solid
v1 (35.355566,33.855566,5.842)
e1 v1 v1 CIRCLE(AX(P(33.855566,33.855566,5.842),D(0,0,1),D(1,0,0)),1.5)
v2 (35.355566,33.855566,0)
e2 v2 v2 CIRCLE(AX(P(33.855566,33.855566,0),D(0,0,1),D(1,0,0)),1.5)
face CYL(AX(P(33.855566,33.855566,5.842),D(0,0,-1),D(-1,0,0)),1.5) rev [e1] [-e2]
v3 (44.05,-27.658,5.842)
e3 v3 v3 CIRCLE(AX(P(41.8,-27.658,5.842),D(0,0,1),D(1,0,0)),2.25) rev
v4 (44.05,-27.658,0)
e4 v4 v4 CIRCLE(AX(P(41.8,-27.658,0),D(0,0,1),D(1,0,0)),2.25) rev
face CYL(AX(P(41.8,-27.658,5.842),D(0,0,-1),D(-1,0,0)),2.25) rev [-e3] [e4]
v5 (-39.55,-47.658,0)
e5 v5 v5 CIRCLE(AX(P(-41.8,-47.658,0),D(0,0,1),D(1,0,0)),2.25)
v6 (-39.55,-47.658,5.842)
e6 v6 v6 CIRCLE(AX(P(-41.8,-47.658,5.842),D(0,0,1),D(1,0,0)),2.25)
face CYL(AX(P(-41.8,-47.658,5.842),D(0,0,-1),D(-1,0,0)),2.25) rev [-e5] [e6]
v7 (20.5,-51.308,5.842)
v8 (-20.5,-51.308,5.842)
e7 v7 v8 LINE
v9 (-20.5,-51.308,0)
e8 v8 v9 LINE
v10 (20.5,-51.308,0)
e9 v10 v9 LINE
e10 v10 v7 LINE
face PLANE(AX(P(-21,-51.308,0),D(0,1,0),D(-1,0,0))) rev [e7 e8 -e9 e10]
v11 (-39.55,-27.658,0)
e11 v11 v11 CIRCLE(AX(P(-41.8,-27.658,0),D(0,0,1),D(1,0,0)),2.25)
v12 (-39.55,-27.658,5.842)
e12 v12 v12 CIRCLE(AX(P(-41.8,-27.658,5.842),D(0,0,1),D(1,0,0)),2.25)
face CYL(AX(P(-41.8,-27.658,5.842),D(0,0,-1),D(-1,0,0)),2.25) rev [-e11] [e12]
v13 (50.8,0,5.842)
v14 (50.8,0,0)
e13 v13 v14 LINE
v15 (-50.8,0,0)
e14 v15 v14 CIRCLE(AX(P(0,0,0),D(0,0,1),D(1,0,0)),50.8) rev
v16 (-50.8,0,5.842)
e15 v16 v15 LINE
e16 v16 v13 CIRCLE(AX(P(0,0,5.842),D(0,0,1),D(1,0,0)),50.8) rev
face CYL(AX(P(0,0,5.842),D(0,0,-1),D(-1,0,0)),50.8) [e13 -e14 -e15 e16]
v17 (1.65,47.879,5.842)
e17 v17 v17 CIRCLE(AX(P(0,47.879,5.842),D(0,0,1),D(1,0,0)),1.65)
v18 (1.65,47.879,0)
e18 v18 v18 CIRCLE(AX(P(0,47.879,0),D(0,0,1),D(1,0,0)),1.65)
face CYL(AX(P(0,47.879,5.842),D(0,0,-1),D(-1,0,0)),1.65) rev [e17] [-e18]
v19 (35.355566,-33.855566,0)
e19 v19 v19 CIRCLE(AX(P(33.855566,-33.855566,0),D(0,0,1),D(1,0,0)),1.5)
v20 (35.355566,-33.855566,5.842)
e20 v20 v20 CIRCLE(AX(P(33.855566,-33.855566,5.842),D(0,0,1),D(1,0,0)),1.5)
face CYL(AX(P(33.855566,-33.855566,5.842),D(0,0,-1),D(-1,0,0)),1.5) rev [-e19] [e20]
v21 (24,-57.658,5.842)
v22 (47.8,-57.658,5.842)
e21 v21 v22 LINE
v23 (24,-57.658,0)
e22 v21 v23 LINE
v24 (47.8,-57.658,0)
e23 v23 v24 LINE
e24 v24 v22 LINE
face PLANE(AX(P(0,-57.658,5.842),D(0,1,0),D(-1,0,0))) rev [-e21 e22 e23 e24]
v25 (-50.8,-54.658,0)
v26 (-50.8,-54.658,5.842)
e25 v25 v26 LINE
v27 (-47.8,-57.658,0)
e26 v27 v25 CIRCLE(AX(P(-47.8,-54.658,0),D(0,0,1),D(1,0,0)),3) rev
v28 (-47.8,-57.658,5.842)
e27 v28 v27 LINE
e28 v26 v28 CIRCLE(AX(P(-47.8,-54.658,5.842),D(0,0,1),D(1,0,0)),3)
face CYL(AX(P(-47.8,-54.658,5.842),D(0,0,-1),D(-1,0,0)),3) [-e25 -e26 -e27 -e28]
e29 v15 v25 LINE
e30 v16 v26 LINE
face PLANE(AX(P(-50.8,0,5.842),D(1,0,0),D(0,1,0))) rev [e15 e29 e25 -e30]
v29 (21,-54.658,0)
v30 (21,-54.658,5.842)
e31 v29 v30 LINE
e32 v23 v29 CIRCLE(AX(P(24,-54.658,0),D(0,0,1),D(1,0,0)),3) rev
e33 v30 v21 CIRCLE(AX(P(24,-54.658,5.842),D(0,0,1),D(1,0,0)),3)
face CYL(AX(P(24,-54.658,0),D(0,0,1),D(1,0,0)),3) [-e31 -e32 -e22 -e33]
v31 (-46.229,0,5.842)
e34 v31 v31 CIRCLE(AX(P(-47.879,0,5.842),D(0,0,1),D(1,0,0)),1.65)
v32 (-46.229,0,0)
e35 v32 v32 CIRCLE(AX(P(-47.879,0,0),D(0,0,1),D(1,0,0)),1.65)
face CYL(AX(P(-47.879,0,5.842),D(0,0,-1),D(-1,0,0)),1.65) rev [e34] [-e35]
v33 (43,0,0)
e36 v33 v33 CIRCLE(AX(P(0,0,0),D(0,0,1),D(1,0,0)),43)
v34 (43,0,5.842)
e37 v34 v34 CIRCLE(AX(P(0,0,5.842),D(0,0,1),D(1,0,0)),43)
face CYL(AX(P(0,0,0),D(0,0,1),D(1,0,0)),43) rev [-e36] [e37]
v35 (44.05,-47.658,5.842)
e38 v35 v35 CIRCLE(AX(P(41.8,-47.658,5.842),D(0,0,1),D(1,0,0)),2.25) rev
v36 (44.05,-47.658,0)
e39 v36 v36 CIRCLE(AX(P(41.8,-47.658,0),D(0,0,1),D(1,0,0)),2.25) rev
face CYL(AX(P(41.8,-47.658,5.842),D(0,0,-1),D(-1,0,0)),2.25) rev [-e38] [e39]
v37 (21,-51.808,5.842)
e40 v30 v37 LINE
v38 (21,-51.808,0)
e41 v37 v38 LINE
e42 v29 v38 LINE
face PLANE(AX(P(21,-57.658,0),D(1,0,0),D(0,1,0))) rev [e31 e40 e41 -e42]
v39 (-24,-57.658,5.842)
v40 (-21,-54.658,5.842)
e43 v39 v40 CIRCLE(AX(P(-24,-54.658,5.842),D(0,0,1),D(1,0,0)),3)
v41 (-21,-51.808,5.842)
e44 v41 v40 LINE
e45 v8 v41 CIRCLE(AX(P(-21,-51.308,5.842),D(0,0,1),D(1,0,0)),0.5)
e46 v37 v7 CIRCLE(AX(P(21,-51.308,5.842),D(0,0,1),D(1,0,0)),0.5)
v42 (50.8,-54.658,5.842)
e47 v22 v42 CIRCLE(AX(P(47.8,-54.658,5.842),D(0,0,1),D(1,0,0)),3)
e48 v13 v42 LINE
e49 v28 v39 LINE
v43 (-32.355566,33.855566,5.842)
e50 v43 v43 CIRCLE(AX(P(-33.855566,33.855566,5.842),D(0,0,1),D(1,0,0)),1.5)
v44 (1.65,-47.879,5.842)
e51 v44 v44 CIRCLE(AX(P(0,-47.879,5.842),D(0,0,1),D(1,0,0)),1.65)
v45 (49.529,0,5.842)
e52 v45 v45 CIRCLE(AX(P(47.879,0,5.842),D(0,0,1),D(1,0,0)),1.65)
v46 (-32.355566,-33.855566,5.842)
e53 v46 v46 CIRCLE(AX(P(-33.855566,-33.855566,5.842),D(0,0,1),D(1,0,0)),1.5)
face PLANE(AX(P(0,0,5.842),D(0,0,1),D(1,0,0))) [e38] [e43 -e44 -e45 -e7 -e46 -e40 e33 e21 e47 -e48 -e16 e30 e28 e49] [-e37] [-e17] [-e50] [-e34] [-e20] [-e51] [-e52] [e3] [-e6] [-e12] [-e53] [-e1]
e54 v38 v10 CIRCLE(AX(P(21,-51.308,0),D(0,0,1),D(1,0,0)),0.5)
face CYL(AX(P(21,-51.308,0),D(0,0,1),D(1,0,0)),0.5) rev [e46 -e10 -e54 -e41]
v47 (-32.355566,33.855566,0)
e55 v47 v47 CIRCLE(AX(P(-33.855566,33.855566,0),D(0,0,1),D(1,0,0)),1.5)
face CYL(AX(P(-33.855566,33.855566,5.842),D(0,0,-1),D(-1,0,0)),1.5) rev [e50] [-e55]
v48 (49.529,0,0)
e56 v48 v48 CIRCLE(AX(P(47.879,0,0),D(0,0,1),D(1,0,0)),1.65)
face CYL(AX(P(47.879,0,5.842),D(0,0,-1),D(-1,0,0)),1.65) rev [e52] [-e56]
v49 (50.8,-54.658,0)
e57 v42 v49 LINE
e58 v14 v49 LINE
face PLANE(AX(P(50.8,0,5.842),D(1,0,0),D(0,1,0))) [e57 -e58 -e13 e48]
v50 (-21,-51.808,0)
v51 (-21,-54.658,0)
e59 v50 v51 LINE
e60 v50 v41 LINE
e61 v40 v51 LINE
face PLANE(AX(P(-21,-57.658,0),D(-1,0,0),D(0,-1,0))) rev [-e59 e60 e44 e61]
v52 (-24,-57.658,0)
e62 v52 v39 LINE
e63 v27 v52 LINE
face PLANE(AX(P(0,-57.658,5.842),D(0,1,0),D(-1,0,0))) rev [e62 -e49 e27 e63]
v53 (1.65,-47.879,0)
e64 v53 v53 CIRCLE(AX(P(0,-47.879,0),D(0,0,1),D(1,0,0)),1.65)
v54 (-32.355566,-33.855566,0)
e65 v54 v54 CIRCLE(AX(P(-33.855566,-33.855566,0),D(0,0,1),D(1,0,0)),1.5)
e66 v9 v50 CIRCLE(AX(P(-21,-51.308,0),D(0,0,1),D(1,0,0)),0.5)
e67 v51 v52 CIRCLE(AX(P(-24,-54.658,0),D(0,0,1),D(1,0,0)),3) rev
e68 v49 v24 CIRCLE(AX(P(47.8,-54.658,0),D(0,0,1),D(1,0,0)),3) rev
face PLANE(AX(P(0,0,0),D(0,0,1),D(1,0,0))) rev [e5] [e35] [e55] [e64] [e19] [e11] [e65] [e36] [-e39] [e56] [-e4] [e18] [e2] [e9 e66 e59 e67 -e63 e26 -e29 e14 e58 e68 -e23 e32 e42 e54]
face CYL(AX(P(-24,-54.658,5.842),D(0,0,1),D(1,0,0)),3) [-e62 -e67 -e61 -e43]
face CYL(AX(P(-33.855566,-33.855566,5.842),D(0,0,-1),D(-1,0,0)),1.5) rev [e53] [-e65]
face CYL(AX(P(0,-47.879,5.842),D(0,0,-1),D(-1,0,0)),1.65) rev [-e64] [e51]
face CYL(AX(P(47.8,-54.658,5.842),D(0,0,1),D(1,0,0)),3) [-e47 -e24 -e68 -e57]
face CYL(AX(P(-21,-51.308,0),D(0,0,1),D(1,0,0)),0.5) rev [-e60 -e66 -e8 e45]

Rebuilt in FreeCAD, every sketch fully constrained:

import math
import FreeCAD as App
import Part
import Sketcher

V = App.Vector


def edges_at(feature, points):
    """Names of the edges that pass closest to the given points."""
    edges = feature.Shape.Edges
    near = lambda p: min(range(len(edges)), key=lambda i: edges[i].distToShape(Part.Vertex(*p))[0])
    return sorted({f"Edge{near(p) + 1}" for p in points})


def add_polygon(sketch, points):
    """Adds a closed chain of lines whose ends are joined by coincident constraints."""
    first, n = sketch.GeometryCount, len(points)
    for a, b in zip(points, points[1:] + points[:1]):
        sketch.addGeometry(Part.LineSegment(App.Vector(*a, 0), App.Vector(*b, 0)), False)
    for i in range(n):
        sketch.addConstraint(Sketcher.Constraint("Coincident", first + i, 2, first + (i + 1) % n, 1))

doc = App.newDocument("Part")
body = doc.addObject("PartDesign::Body", "Body")

sketch1 = doc.addObject("Sketcher::SketchObject", "Sketch")
body.addObject(sketch1)
sketch1.AttachmentSupport = (doc.XY_Plane, [""])
sketch1.MapMode = "FlatFace"
sketch1.addGeometry(Part.LineSegment(V(-50.8, 0, 0), V(-50.8, -57.7, 0)), False)
sketch1.addGeometry(Part.LineSegment(V(-50.8, -57.7, 0), V(50.8, -57.7, 0)), False)
sketch1.addGeometry(Part.LineSegment(V(50.8, -57.7, 0), V(50.8, 0, 0)), False)
sketch1.addGeometry(Part.ArcOfCircle(Part.Circle(V(0, 0, 0), V(0, 0, 1), 50.8), math.radians(0), math.radians(180)), False)
sketch1.addGeometry(Part.Circle(V(-41.8, -47.7, 0), V(0, 0, 1), 2.2), False)
sketch1.addGeometry(Part.Circle(V(-41.8, -27.7, 0), V(0, 0, 1), 2.2), False)
sketch1.addGeometry(Part.Circle(V(-33.9, -33.9, 0), V(0, 0, 1), 1.5), False)
sketch1.addGeometry(Part.Circle(V(0, -47.9, 0), V(0, 0, 1), 1.6), False)
sketch1.addGeometry(Part.Circle(V(41.8, -47.7, 0), V(0, 0, 1), 2.2), False)
sketch1.addGeometry(Part.Circle(V(33.9, -33.9, 0), V(0, 0, 1), 1.5), False)
sketch1.addGeometry(Part.Circle(V(41.8, -27.7, 0), V(0, 0, 1), 2.2), False)
sketch1.addGeometry(Part.Circle(V(-47.9, 0, 0), V(0, 0, 1), 1.6), False)
sketch1.addGeometry(Part.Circle(V(-33.9, 33.9, 0), V(0, 0, 1), 1.5), False)
sketch1.addGeometry(Part.Circle(V(0, 0, 0), V(0, 0, 1), 45), False)
sketch1.addGeometry(Part.Circle(V(47.9, 0, 0), V(0, 0, 1), 1.6), False)
sketch1.addGeometry(Part.Circle(V(0, 47.9, 0), V(0, 0, 1), 1.6), False)
sketch1.addGeometry(Part.Circle(V(33.9, 33.9, 0), V(0, 0, 1), 1.5), False)
sketch1.addConstraint(Sketcher.Constraint("Coincident", 0, 2, 1, 1))
sketch1.addConstraint(Sketcher.Constraint("Coincident", 1, 2, 2, 1))
sketch1.addConstraint(Sketcher.Constraint("Tangent", 2, 2, 3, 1))
sketch1.addConstraint(Sketcher.Constraint("Tangent", 3, 2, 0, 1))
sketch1.addConstraint(Sketcher.Constraint("Vertical", 0))
sketch1.addConstraint(Sketcher.Constraint("Horizontal", 1))
sketch1.addConstraint(Sketcher.Constraint("Vertical", 2))
sketch1.addConstraint(Sketcher.Constraint("Coincident", 3, 3, -1, 1))
sketch1.addConstraint(Sketcher.Constraint("Coincident", 13, 3, -1, 1))
sketch1.addConstraint(Sketcher.Constraint("Equal", 4, 5))
sketch1.addConstraint(Sketcher.Constraint("Equal", 5, 8))
sketch1.addConstraint(Sketcher.Constraint("Equal", 6, 9))
sketch1.addConstraint(Sketcher.Constraint("Equal", 8, 10))
sketch1.addConstraint(Sketcher.Constraint("Equal", 7, 11))
sketch1.addConstraint(Sketcher.Constraint("Equal", 9, 12))
sketch1.addConstraint(Sketcher.Constraint("Equal", 11, 14))
sketch1.addConstraint(Sketcher.Constraint("Equal", 14, 15))
sketch1.addConstraint(Sketcher.Constraint("Equal", 12, 16))
sketch1.addConstraint(Sketcher.Constraint("Symmetric", 9, 3, 12, 3, -1, 1))
sketch1.addConstraint(Sketcher.Constraint("Symmetric", 11, 3, 14, 3, -1, 1))
sketch1.addConstraint(Sketcher.Constraint("Symmetric", 7, 3, 15, 3, -1, 1))
sketch1.addConstraint(Sketcher.Constraint("Symmetric", 6, 3, 16, 3, -1, 1))
sketch1.addConstraint(Sketcher.Constraint("Symmetric", 4, 3, 8, 3, -2))
sketch1.addConstraint(Sketcher.Constraint("Symmetric", 6, 3, 9, 3, -2))
sketch1.addConstraint(Sketcher.Constraint("Symmetric", 5, 3, 10, 3, -2))
sketch1.addConstraint(Sketcher.Constraint("PointOnObject", 7, 3, -2))
sketch1.addConstraint(Sketcher.Constraint("PointOnObject", 11, 3, -1))
sketch1.addConstraint(Sketcher.Constraint("Vertical", 4, 3, 5, 3))
sketch1.addConstraint(Sketcher.Constraint("Diameter", 6, 3.0))
sketch1.addConstraint(Sketcher.Constraint("Diameter", 4, 4.5))
sketch1.addConstraint(Sketcher.Constraint("Diameter", 7, 3.3))
sketch1.addConstraint(Sketcher.Constraint("Radius", 3, 50.8))
sketch1.addConstraint(Sketcher.Constraint("Diameter", 13, 89.916))
sketch1.addConstraint(Sketcher.Constraint("DistanceY", 4, 3, 5, 3, 20.0))
sketch1.addConstraint(Sketcher.Constraint("DistanceX", 0, 2, 4, 3, 9.0))
sketch1.addConstraint(Sketcher.Constraint("DistanceY", 0, 2, 4, 3, 10.0))
sketch1.addConstraint(Sketcher.Constraint("DistanceY", 0, 2, 0, 1, 57.658))
sketch1.addConstraint(Sketcher.Constraint("DistanceY", 7, 3, -1, 1, 47.879))
sketch1.addConstraint(Sketcher.Constraint("DistanceX", 11, 3, -1, 1, 47.879))
sketch1.addConstraint(Sketcher.Constraint("DistanceX", 6, 3, 9, 3, 67.711131))
sketch1.addConstraint(Sketcher.Constraint("DistanceY", 6, 3, 12, 3, 67.711131))
pad1 = doc.addObject("PartDesign::Pad", "Pad")
body.addObject(pad1)
pad1.Profile = sketch1
pad1.Length = 5.842

sketch2 = doc.addObject("Sketcher::SketchObject", "Sketch001")
body.addObject(sketch2)
sketch2.AttachmentSupport = (doc.XY_Plane, [""])
sketch2.MapMode = "FlatFace"
sketch2.AttachmentOffset = App.Placement(V(0, 0, 5.842), App.Rotation())
sketch2.addGeometry(Part.Circle(V(0, 0, 0), V(0, 0, 1), 45), False)
sketch2.addGeometry(Part.Circle(V(0, 0, 0), V(0, 0, 1), 43), False)
sketch2.addConstraint(Sketcher.Constraint("Coincident", 0, 3, -1, 1))
sketch2.addConstraint(Sketcher.Constraint("Coincident", 1, 3, -1, 1))
sketch2.addConstraint(Sketcher.Constraint("Diameter", 1, 86.0))
sketch2.addConstraint(Sketcher.Constraint("Diameter", 0, 89.916))
pad2 = doc.addObject("PartDesign::Pad", "Pad001")
body.addObject(pad2)
pad2.Profile = sketch2
pad2.Length = 5.842
pad2.Reversed = True

sketch3 = doc.addObject("Sketcher::SketchObject", "Sketch002")
body.addObject(sketch3)
sketch3.AttachmentSupport = (doc.XY_Plane, [""])
sketch3.MapMode = "FlatFace"
sketch3.AttachmentOffset = App.Placement(V(0, 0, 5.842), App.Rotation())
add_polygon(sketch3, [(-21, -51), (-21, -58), (21, -58), (21, -51)])
sketch3.addConstraint(Sketcher.Constraint("Vertical", 0))
sketch3.addConstraint(Sketcher.Constraint("Horizontal", 1))
sketch3.addConstraint(Sketcher.Constraint("Vertical", 2))
sketch3.addConstraint(Sketcher.Constraint("Horizontal", 3))
sketch3.addConstraint(Sketcher.Constraint("DistanceX", 1, 1, 1, 2, 42.0))
sketch3.addConstraint(Sketcher.Constraint("DistanceX", 0, 2, -1, 1, 21.0))
sketch3.addConstraint(Sketcher.Constraint("DistanceY", 0, 2, 0, 1, 6.35))
sketch3.addConstraint(Sketcher.Constraint("DistanceY", 0, 2, -1, 1, 57.658))
pocket1 = doc.addObject("PartDesign::Pocket", "Pocket")
body.addObject(pocket1)
pocket1.Profile = sketch3
pocket1.Type = "ThroughAll"

sketch4 = doc.addObject("Sketcher::SketchObject", "Sketch003")
body.addObject(sketch4)
sketch4.AttachmentSupport = (doc.XY_Plane, [""])
sketch4.MapMode = "FlatFace"
sketch4.AttachmentOffset = App.Placement(V(0, 0, 5.842), App.Rotation())
sketch4.addGeometry(Part.Circle(V(-21, -51.3, 0), V(0, 0, 1), 0.5), False)
sketch4.addGeometry(Part.Circle(V(21, -51.3, 0), V(0, 0, 1), 0.5), False)
sketch4.addConstraint(Sketcher.Constraint("Equal", 0, 1))
sketch4.addConstraint(Sketcher.Constraint("Symmetric", 0, 3, 1, 3, -2))
sketch4.addConstraint(Sketcher.Constraint("Diameter", 0, 1.0))
sketch4.addConstraint(Sketcher.Constraint("DistanceX", 0, 3, -1, 1, 21.0))
sketch4.addConstraint(Sketcher.Constraint("DistanceY", 0, 3, -1, 1, 51.308))
pocket2 = doc.addObject("PartDesign::Pocket", "Pocket001")
body.addObject(pocket2)
pocket2.Profile = sketch4
pocket2.Type = "ThroughAll"
doc.recompute()

fillet = doc.addObject("PartDesign::Fillet", "Fillet")
body.addObject(fillet)
fillet.Base = (pocket2, edges_at(pocket2, [
    (50.8, -57.658, 2.921),
    (-50.8, -57.658, 2.921),
    (-21, -57.658, 2.921),
    (21, -57.658, 2.921),
]))
fillet.Radius = 3

doc.recompute()
